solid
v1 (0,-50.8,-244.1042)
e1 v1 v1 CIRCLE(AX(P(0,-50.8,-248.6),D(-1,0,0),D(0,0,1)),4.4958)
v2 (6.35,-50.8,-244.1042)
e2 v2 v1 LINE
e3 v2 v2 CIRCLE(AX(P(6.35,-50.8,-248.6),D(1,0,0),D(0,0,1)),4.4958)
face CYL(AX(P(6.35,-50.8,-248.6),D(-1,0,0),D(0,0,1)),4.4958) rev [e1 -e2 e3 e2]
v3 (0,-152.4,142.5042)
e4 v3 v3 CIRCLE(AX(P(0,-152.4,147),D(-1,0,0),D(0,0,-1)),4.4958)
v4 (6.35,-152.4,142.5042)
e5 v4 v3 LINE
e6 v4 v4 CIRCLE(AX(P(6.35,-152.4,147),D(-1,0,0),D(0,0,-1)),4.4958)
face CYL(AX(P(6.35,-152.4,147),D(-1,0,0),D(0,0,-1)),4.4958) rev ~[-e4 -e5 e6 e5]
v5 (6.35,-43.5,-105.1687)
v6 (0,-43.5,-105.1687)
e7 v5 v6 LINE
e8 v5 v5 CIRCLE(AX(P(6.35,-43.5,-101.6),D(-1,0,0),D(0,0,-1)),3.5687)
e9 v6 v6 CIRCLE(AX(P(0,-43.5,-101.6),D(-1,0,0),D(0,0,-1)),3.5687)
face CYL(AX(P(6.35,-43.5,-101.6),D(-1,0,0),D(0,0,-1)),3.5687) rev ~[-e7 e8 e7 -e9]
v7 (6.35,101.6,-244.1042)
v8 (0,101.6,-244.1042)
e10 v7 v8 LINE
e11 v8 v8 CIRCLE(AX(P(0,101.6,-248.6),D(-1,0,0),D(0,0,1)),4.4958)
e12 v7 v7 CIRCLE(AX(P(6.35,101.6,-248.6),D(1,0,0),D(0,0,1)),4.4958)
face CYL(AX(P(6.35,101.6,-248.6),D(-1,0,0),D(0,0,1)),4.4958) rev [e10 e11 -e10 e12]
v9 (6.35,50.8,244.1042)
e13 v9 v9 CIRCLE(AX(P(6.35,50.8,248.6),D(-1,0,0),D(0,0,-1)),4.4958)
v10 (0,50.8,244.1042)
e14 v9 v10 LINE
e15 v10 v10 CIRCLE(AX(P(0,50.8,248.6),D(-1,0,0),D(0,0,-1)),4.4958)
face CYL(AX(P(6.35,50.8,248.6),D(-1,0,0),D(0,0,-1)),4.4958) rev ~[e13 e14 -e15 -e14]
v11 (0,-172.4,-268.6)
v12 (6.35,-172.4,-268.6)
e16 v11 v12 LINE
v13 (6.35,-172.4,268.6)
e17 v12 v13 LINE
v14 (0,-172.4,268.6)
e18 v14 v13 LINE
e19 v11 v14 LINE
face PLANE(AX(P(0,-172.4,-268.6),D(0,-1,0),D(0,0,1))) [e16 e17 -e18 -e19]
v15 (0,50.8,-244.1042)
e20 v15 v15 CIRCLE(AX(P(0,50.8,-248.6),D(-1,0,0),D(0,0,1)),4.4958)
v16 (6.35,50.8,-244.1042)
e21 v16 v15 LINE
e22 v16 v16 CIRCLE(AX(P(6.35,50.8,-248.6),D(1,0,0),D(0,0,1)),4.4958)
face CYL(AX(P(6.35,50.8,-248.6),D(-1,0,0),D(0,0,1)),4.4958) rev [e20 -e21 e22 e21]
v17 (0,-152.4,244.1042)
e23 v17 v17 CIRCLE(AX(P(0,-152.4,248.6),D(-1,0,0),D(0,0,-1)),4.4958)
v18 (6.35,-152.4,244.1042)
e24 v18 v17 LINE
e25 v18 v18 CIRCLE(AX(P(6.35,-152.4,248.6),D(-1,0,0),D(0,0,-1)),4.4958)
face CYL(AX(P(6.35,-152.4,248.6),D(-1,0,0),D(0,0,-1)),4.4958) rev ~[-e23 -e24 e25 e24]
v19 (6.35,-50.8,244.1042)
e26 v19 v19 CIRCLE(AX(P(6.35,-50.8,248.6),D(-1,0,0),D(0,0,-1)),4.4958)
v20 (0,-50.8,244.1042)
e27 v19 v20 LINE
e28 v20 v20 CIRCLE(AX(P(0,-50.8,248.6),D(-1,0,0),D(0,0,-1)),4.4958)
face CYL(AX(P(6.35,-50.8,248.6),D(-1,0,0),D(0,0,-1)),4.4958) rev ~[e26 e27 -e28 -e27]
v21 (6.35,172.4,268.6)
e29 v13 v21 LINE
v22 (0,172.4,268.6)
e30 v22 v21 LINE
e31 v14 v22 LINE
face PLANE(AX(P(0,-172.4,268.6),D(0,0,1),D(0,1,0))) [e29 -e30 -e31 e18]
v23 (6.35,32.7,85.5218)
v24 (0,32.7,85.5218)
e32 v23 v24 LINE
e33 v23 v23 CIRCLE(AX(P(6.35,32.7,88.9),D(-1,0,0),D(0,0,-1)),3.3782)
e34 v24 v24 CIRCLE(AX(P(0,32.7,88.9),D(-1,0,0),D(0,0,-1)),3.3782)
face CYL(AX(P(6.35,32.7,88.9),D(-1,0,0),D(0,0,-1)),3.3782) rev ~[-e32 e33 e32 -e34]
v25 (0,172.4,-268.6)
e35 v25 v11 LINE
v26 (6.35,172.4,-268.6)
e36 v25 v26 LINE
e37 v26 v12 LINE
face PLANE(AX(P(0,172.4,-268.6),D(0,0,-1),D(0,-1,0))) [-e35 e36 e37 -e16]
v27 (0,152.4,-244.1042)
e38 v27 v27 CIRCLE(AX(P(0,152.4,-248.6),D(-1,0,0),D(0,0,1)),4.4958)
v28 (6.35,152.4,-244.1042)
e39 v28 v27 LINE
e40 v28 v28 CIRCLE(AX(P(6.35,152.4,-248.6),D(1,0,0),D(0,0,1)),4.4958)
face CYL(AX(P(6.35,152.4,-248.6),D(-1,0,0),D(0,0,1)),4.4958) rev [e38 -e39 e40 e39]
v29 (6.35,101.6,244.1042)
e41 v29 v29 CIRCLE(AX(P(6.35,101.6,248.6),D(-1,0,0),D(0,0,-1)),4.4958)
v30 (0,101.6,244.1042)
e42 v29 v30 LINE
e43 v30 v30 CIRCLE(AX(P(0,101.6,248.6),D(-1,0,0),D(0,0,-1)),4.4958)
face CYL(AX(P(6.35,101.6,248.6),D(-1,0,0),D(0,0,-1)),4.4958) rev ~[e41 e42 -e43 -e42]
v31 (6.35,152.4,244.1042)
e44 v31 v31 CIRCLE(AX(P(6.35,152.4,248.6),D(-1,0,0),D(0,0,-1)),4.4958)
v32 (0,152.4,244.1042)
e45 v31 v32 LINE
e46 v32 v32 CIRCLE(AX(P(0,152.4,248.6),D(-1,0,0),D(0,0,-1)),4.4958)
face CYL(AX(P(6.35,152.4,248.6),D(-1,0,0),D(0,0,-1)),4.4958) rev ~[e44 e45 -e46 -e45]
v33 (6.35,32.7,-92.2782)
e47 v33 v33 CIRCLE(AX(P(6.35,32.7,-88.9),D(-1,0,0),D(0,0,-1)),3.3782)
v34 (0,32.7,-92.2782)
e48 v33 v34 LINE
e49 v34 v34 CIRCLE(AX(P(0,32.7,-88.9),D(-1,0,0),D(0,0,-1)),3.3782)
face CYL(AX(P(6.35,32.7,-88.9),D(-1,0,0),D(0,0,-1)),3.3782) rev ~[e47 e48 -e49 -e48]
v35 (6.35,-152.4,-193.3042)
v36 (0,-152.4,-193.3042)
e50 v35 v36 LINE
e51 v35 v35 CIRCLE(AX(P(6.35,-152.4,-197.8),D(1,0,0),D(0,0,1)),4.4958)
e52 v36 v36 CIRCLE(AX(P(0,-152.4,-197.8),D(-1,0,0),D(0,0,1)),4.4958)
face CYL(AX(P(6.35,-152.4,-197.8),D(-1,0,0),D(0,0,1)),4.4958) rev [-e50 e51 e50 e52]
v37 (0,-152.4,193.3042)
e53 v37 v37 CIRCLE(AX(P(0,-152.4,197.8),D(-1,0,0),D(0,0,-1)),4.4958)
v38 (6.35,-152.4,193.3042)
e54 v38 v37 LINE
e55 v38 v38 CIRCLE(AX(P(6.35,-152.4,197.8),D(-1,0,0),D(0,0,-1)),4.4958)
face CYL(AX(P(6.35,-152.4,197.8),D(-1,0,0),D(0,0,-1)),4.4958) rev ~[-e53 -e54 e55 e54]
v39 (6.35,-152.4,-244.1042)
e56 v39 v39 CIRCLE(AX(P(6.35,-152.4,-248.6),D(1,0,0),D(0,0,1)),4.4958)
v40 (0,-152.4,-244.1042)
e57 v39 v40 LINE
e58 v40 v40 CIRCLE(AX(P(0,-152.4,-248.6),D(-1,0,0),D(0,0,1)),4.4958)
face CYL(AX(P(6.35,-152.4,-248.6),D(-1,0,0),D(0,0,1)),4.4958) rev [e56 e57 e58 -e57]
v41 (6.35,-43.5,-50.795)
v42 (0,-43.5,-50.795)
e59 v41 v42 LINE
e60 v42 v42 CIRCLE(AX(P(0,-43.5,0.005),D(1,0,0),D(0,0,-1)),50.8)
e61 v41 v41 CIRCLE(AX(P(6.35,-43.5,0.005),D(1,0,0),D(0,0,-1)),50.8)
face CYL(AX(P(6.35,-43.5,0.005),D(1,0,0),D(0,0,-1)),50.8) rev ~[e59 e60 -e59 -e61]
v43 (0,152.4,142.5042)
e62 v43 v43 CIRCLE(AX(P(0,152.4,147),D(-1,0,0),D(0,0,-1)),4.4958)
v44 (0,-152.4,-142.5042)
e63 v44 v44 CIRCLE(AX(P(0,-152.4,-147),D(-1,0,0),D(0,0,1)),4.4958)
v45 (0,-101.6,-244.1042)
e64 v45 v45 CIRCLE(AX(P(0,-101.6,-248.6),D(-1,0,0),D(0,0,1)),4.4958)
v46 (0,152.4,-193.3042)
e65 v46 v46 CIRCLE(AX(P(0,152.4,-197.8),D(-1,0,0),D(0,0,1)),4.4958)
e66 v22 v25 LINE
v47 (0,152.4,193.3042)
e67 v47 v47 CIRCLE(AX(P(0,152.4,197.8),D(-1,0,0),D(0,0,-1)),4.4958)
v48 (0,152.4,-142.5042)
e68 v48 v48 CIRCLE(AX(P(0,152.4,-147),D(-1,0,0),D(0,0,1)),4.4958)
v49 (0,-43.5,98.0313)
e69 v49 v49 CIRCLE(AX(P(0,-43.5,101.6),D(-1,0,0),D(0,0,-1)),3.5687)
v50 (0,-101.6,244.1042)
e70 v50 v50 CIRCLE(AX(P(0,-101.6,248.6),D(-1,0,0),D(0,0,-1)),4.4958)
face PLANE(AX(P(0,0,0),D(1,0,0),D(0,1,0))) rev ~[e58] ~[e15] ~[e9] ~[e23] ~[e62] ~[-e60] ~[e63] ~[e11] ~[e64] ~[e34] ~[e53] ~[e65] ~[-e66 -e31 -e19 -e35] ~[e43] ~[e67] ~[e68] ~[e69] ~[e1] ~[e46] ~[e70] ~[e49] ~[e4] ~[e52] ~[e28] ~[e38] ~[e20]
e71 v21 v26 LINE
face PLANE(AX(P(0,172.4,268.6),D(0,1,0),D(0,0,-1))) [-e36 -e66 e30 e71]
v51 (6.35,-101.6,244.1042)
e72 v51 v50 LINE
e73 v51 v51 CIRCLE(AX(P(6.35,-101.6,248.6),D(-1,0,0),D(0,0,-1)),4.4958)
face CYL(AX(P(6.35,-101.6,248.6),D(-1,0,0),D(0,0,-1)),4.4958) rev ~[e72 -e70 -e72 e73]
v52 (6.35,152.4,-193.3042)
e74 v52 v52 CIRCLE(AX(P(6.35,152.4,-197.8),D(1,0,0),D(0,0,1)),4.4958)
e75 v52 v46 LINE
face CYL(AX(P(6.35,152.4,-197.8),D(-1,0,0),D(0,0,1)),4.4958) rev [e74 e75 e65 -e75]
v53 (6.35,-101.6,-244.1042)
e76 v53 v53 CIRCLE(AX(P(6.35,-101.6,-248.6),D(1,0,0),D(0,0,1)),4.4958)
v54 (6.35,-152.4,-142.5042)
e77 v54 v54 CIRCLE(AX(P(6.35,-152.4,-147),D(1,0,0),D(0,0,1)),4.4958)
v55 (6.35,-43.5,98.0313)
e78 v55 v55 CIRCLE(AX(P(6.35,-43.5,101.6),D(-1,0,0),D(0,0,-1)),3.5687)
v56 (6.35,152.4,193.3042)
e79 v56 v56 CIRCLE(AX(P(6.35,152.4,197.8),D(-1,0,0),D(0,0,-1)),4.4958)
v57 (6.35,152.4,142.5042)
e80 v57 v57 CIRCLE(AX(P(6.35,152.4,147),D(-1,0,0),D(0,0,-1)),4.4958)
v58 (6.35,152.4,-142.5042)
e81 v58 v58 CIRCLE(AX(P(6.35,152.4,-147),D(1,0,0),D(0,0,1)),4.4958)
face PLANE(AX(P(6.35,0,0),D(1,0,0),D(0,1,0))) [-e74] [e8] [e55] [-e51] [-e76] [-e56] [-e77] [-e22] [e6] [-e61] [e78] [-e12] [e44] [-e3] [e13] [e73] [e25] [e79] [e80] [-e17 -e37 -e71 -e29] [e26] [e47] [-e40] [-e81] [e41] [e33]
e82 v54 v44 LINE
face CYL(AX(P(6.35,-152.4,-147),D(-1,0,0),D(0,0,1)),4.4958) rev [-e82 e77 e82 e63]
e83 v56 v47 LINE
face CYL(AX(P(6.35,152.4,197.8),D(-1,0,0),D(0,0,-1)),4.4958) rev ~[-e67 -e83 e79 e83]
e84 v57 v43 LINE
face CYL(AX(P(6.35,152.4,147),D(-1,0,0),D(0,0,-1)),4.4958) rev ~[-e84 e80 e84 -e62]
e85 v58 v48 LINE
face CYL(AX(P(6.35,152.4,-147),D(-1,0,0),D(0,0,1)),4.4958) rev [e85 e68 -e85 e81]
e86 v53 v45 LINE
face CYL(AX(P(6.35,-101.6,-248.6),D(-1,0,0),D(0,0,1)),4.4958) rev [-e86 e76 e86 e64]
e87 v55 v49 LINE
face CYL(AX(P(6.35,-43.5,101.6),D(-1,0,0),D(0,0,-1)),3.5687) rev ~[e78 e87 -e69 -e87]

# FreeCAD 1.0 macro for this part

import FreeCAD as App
import Part
import Sketcher
from FreeCAD import Vector
Q = App.Units.Quantity

doc = App.newDocument("Part")
body = doc.addObject("PartDesign::Body", "Body")

sketch1 = doc.addObject("Sketcher::SketchObject", "Sketch")
body.addObject(sketch1)
sketch1.AttachmentSupport = (doc.YZ_Plane, [""])
sketch1.MapMode = "FlatFace"
sketch1.addGeometry([
    Part.LineSegment(Vector(172, 269, 0), Vector(-172, 269, 0)),
    Part.LineSegment(Vector(-172, 269, 0), Vector(-172, -269, 0)),
    Part.LineSegment(Vector(-172, -269, 0), Vector(172, -269, 0)),
    Part.LineSegment(Vector(172, -269, 0), Vector(172, 269, 0)),
], False)
sketch1.addConstraint([
    Sketcher.Constraint("Coincident", 0, 2, 1, 1),
    Sketcher.Constraint("Coincident", 1, 2, 2, 1),
    Sketcher.Constraint("Coincident", 2, 2, 3, 1),
    Sketcher.Constraint("Coincident", 3, 2, 0, 1),
    Sketcher.Constraint("Horizontal", 0),
    Sketcher.Constraint("Vertical", 1),
    Sketcher.Constraint("Horizontal", 2),
    Sketcher.Constraint("Vertical", 3),
    Sketcher.Constraint("Symmetric", 0, 2, 2, 2, -1, 1),
    Sketcher.Constraint("DistanceX", 0, 2, 0, 1, Q("13.5748 in")),
    Sketcher.Constraint("DistanceY", 1, 2, 1, 1, Q("21.1496 in")),
])
pad1 = doc.addObject("PartDesign::Pad", "Pad")
body.addObject(pad1)
pad1.Profile = sketch1
pad1.Length = Q("0.25 in")

sketch2 = doc.addObject("Sketcher::SketchObject", "Sketch001")
body.addObject(sketch2)
sketch2.AttachmentSupport = (doc.YZ_Plane, [""])
sketch2.MapMode = "FlatFace"
sketch2.AttachmentOffset = App.Placement(Vector(0, 0, 0.25 * 25.4), App.Rotation())
sketch2.addGeometry(Part.Circle(Vector(-44, 0, 0), Vector(0, 0, 1), 51), False)
sketch2.addConstraint([
    Sketcher.Constraint("Diameter", 0, Q("4 in")),
    Sketcher.Constraint("DistanceX", 0, 3, -1, 1, Q("1.7126 in")),
    Sketcher.Constraint("DistanceY", -1, 1, 0, 3, Q("0.0002 in")),
])
pocket1 = doc.addObject("PartDesign::Pocket", "Pocket")
body.addObject(pocket1)
pocket1.Profile = sketch2
pocket1.Type = "ThroughAll"

sketch3 = doc.addObject("Sketcher::SketchObject", "Sketch002")
body.addObject(sketch3)
sketch3.AttachmentSupport = (doc.YZ_Plane, [""])
sketch3.MapMode = "FlatFace"
sketch3.AttachmentOffset = App.Placement(Vector(0, 0, 0.25 * 25.4), App.Rotation())
sketch3.addGeometry([
    Part.Circle(Vector(-43.5, 101.6, 0), Vector(0, 0, 1), 3.6),
    Part.Circle(Vector(-43.5, -101.6, 0), Vector(0, 0, 1), 3.6),
], False)
sketch3.addConstraint([
    Sketcher.Constraint("Equal", 0, 1),
    Sketcher.Constraint("Symmetric", 0, 3, 1, 3, -1),
    Sketcher.Constraint("Diameter", 0, Q("0.281 in")),
    Sketcher.Constraint("DistanceY", -1, 1, 0, 3, Q("4 in")),
    Sketcher.Constraint("DistanceX", 0, 3, -1, 1, Q("1.7126 in")),
])
doc.recompute()
hole = doc.addObject("PartDesign::Hole", "Hole")
body.addObject(hole)
hole.Profile = sketch3
hole.ThreadType = "None"
hole.Diameter = Q("0.281 in")
hole.DepthType = "ThroughAll"

sketch4 = doc.addObject("Sketcher::SketchObject", "Sketch003")
body.addObject(sketch4)
sketch4.AttachmentSupport = (doc.YZ_Plane, [""])
sketch4.MapMode = "FlatFace"
sketch4.AttachmentOffset = App.Placement(Vector(0, 0, 0.25 * 25.4), App.Rotation())
sketch4.addGeometry([
    Part.Circle(Vector(32.7, 88.9, 0), Vector(0, 0, 1), 3.4),
    Part.Circle(Vector(32.7, -88.9, 0), Vector(0, 0, 1), 3.4),
], False)
sketch4.addConstraint([
    Sketcher.Constraint("Equal", 0, 1),
    Sketcher.Constraint("Symmetric", 0, 3, 1, 3, -1),
    Sketcher.Constraint("Diameter", 0, Q("0.266 in")),
    Sketcher.Constraint("DistanceY", 1, 3, 0, 3, Q("7 in")),
    Sketcher.Constraint("DistanceX", -1, 1, 0, 3, Q("1.2874 in")),
])
doc.recompute()
hole2 = doc.addObject("PartDesign::Hole", "Hole001")
body.addObject(hole2)
hole2.Profile = sketch4
hole2.ThreadType = "None"
hole2.Diameter = Q("0.266 in")
hole2.DepthType = "ThroughAll"

sketch5 = doc.addObject("Sketcher::SketchObject", "Sketch004")
body.addObject(sketch5)
sketch5.AttachmentSupport = (doc.YZ_Plane, [""])
sketch5.MapMode = "FlatFace"
sketch5.AttachmentOffset = App.Placement(Vector(0, 0, 0.25 * 25.4), App.Rotation())
sketch5.addGeometry([
    Part.Circle(Vector(152.4, 248.6, 0), Vector(0, 0, 1), 4.5),
    Part.Circle(Vector(101.6, 248.6, 0), Vector(0, 0, 1), 4.5),
    Part.Circle(Vector(152.4, 197.8, 0), Vector(0, 0, 1), 4.5),
    Part.Circle(Vector(152.4, 147, 0), Vector(0, 0, 1), 4.5),
    Part.Circle(Vector(50.8, 248.6, 0), Vector(0, 0, 1), 4.5),
    Part.Circle(Vector(-50.8, 248.6, 0), Vector(0, 0, 1), 4.5),
    Part.Circle(Vector(-101.6, 248.6, 0), Vector(0, 0, 1), 4.5),
    Part.Circle(Vector(-152.4, 248.6, 0), Vector(0, 0, 1), 4.5),
    Part.Circle(Vector(-152.4, 197.8, 0), Vector(0, 0, 1), 4.5),
    Part.Circle(Vector(-152.4, 147, 0), Vector(0, 0, 1), 4.5),
], False)
sketch5.addConstraint([
    Sketcher.Constraint("Equal", 0, 1),
    Sketcher.Constraint("Equal", 1, 2),
    Sketcher.Constraint("Equal", 2, 3),
    Sketcher.Constraint("Equal", 3, 4),
    Sketcher.Constraint("Equal", 4, 5),
    Sketcher.Constraint("Equal", 5, 6),
    Sketcher.Constraint("Equal", 6, 7),
    Sketcher.Constraint("Equal", 7, 8),
    Sketcher.Constraint("Equal", 8, 9),
    Sketcher.Constraint("Symmetric", 4, 3, 5, 3, -2),
    Sketcher.Constraint("Symmetric", 1, 3, 6, 3, -2),
    Sketcher.Constraint("Symmetric", 0, 3, 7, 3, -2),
    Sketcher.Constraint("Symmetric", 2, 3, 8, 3, -2),
    Sketcher.Constraint("Symmetric", 3, 3, 9, 3, -2),
    Sketcher.Constraint("Horizontal", 0, 3, 1, 3),
    Sketcher.Constraint("Horizontal", 1, 3, 4, 3),
    Sketcher.Constraint("Vertical", 0, 3, 2, 3),
    Sketcher.Constraint("Vertical", 2, 3, 3, 3),
    Sketcher.Constraint("Diameter", 0, Q("0.354 in")),
    Sketcher.Constraint("DistanceX", -1, 1, 0, 3, Q("6 in")),
    Sketcher.Constraint("DistanceX", -1, 1, 1, 3, Q("4 in")),
    Sketcher.Constraint("DistanceX", -1, 1, 4, 3, Q("2 in")),
    Sketcher.Constraint("DistanceY", 2, 3, 0, 3, Q("2 in")),
    Sketcher.Constraint("DistanceY", 3, 3, 2, 3, Q("2 in")),
    Sketcher.Constraint("DistanceY", -1, 1, 0, 3, Q("9.7874 in")),
])
doc.recompute()
hole3 = doc.addObject("PartDesign::Hole", "Hole002")
body.addObject(hole3)
hole3.Profile = sketch5
hole3.ThreadType = "None"
hole3.Diameter = Q("0.354 in")
hole3.DepthType = "ThroughAll"
doc.recompute()

mirrored = doc.addObject("PartDesign::Mirrored", "Mirrored")
body.addObject(mirrored)
mirrored.Originals = [hole3]
mirrored.MirrorPlane = (doc.XY_Plane, [""])
body.Tip = mirrored

doc.recompute()
